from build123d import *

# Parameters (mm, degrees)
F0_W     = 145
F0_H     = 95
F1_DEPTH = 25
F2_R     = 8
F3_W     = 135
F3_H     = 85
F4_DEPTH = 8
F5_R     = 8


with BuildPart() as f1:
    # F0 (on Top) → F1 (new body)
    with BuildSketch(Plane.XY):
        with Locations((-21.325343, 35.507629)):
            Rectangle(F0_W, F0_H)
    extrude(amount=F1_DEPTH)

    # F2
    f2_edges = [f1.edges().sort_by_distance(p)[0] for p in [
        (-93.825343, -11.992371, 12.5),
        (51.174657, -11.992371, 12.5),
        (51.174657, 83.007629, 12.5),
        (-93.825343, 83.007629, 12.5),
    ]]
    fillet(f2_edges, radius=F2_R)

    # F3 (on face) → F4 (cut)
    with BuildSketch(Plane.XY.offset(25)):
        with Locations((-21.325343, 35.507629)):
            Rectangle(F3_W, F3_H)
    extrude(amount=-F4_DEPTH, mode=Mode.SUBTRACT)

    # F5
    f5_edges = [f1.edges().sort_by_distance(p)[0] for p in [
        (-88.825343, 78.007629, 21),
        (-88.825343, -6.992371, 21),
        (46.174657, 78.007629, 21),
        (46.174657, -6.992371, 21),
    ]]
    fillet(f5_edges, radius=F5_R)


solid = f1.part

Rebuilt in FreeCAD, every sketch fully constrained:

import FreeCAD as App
import Part
import Sketcher

V = App.Vector
Q = App.Units.Quantity


def edges_at(feature, points):
    """Names of the edges that pass closest to the given points."""
    edges = feature.Shape.Edges
    near = lambda p: min(range(len(edges)), key=lambda i: edges[i].distToShape(Part.Vertex(*p))[0])
    return sorted({f"Edge{near(p) + 1}" for p in points})

doc = App.newDocument("Part")
body = doc.addObject("PartDesign::Body", "Body")

# Sketch on XY plane
sketch1 = body.newObject("Sketcher::SketchObject", "Sketch")
sketch1.AttachmentSupport = (doc.getObject("XY_Plane"), [""])
sketch1.MapMode = "FlatFace"
sketch1.addGeometry([
    Part.LineSegment(V(-94, 83, 0), V(-94, -12, 0)),
    Part.LineSegment(V(-94, -12, 0), V(51, -12, 0)),
    Part.LineSegment(V(51, -12, 0), V(51, 83, 0)),
    Part.LineSegment(V(51, 83, 0), V(-94, 83, 0)),
], False)
sketch1.addConstraint([
    Sketcher.Constraint("Coincident", 0, 2, 1, 1),
    Sketcher.Constraint("Coincident", 1, 2, 2, 1),
    Sketcher.Constraint("Coincident", 2, 2, 3, 1),
    Sketcher.Constraint("Coincident", 3, 2, 0, 1),
    Sketcher.Constraint("Vertical", 0),
    Sketcher.Constraint("Horizontal", 1),
    Sketcher.Constraint("Vertical", 2),
    Sketcher.Constraint("Horizontal", 3),
    Sketcher.Constraint("DistanceX", 1, 1, 1, 2, Q("145 mm")),
    Sketcher.Constraint("DistanceY", 0, 2, 0, 1, Q("95 mm")),
    Sketcher.Constraint("DistanceY", 0, 2, -1, 1, Q("11.992371 mm")),
    Sketcher.Constraint("DistanceX", 0, 2, -1, 1, Q("93.825343 mm")),
])
pad1 = body.newObject("PartDesign::Pad", "Pad")
pad1.Profile = sketch1
pad1.Length = 25
doc.recompute()

fillet = body.newObject("PartDesign::Fillet", "Fillet")
fillet.Base = (pad1, edges_at(pad1, [
    (-93.825, -11.992, 12.5),
    (51.175, -11.992, 12.5),
    (51.175, 83.008, 12.5),
    (-93.825, 83.008, 12.5),
]))
fillet.Radius = 8

# Sketch on XY plane
sketch2 = body.newObject("Sketcher::SketchObject", "Sketch001")
sketch2.AttachmentSupport = (doc.getObject("XY_Plane"), [""])
sketch2.MapMode = "FlatFace"
sketch2.AttachmentOffset = App.Placement(V(0, 0, 25), App.Rotation())
sketch2.addGeometry([
    Part.LineSegment(V(-89, 78, 0), V(-89, -7, 0)),
    Part.LineSegment(V(-89, -7, 0), V(46, -7, 0)),
    Part.LineSegment(V(46, -7, 0), V(46, 78, 0)),
    Part.LineSegment(V(46, 78, 0), V(-89, 78, 0)),
], False)
sketch2.addConstraint([
    Sketcher.Constraint("Coincident", 0, 2, 1, 1),
    Sketcher.Constraint("Coincident", 1, 2, 2, 1),
    Sketcher.Constraint("Coincident", 2, 2, 3, 1),
    Sketcher.Constraint("Coincident", 3, 2, 0, 1),
    Sketcher.Constraint("Vertical", 0),
    Sketcher.Constraint("Horizontal", 1),
    Sketcher.Constraint("Vertical", 2),
    Sketcher.Constraint("Horizontal", 3),
    Sketcher.Constraint("DistanceX", 1, 1, 1, 2, Q("135 mm")),
    Sketcher.Constraint("DistanceY", 0, 2, 0, 1, Q("85 mm")),
    Sketcher.Constraint("DistanceY", 0, 2, -1, 1, Q("6.992371 mm")),
    Sketcher.Constraint("DistanceX", 0, 2, -1, 1, Q("88.825343 mm")),
])
pocket1 = body.newObject("PartDesign::Pocket", "Pocket")
pocket1.Profile = sketch2
pocket1.Length = 8
doc.recompute()

fillet2 = body.newObject("PartDesign::Fillet", "Fillet001")
fillet2.Base = (pocket1, edges_at(pocket1, [
    (-88.825, 78.008, 21),
    (-88.825, -6.992, 21),
    (46.175, 78.008, 21),
    (46.175, -6.992, 21),
]))
fillet2.Radius = 8

doc.recompute()
